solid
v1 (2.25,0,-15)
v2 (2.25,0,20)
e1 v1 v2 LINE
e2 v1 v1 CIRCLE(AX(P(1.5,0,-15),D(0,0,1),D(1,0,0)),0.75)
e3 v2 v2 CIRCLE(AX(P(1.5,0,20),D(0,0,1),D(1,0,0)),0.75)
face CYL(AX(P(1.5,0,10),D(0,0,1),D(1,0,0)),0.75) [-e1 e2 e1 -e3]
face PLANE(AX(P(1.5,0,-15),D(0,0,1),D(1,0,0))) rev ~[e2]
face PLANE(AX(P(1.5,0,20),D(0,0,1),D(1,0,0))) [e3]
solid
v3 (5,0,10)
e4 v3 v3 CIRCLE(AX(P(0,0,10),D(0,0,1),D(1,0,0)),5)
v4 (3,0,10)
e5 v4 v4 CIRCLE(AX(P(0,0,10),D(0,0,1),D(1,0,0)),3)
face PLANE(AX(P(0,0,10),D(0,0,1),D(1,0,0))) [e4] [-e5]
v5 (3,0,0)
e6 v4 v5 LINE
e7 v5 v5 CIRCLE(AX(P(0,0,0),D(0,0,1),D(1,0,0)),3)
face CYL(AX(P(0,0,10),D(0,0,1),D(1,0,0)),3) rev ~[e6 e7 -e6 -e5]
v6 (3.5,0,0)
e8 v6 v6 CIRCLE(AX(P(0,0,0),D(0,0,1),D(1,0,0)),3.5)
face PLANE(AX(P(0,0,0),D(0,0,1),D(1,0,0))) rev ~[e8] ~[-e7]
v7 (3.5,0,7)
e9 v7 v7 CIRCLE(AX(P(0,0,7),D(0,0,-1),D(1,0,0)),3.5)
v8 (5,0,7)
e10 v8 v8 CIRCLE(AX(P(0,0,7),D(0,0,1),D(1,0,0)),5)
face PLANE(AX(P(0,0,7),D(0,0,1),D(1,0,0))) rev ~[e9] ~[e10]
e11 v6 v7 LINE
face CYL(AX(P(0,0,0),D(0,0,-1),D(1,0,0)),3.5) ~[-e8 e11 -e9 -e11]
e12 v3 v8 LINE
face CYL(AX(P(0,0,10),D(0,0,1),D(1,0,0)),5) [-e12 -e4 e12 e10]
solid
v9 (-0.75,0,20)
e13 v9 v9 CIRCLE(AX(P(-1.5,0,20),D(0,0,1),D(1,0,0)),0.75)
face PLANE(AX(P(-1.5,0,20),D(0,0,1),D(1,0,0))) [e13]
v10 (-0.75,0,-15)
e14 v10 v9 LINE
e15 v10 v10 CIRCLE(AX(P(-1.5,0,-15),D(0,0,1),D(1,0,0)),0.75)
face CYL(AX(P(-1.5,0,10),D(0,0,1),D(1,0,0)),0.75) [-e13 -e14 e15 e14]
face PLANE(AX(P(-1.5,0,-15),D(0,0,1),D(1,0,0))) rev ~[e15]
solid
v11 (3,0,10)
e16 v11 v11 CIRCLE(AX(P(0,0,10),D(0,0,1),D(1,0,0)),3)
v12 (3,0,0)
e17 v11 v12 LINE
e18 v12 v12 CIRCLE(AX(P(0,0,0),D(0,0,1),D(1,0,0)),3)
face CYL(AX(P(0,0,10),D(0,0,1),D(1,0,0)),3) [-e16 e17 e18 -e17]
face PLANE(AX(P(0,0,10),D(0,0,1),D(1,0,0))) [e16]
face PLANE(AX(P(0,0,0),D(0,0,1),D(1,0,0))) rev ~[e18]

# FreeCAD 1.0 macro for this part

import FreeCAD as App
import Part
import Sketcher

V = App.Vector

doc = App.newDocument("Part")
body = doc.addObject("PartDesign::Body", "Body")

# Sketch on XY plane
sketch1 = body.newObject("Sketcher::SketchObject", "Sketch")
sketch1.AttachmentSupport = (doc.getObject("XY_Plane"), [""])
sketch1.MapMode = "FlatFace"
sketch1.addGeometry(Part.Circle(V(0, 0, 0), V(0, 0, 1), 3.5), False)
sketch1.addConstraint([
    Sketcher.Constraint("Coincident", 0, 3, -1, 1),
    Sketcher.Constraint("Diameter", 0, 7.0),
])
pad1 = body.newObject("PartDesign::Pad", "Pad")
pad1.Profile = sketch1
pad1.Length = 10

# Sketch on XY plane
sketch2 = body.newObject("Sketcher::SketchObject", "Sketch001")
sketch2.AttachmentSupport = (doc.getObject("XY_Plane"), [""])
sketch2.MapMode = "FlatFace"
sketch2.AttachmentOffset = App.Placement(V(0, 0, 10), App.Rotation())
sketch2.addGeometry(Part.Circle(V(0, 0, 0), V(0, 0, 1), 5), False)
sketch2.addConstraint([
    Sketcher.Constraint("Coincident", 0, 3, -1, 1),
    Sketcher.Constraint("Diameter", 0, 10.0),
])
pad2 = body.newObject("PartDesign::Pad", "Pad001")
pad2.Profile = sketch2
pad2.Length = 3
pad2.Reversed = True

# Sketch on XY plane
sketch3 = body.newObject("Sketcher::SketchObject", "Sketch002")
sketch3.AttachmentSupport = (doc.getObject("XY_Plane"), [""])
sketch3.MapMode = "FlatFace"
sketch3.AttachmentOffset = App.Placement(V(0, 0, 10), App.Rotation())
sketch3.addGeometry(Part.Circle(V(0, 0, 0), V(0, 0, 1), 3), False)
sketch3.addConstraint([
    Sketcher.Constraint("Coincident", 0, 3, -1, 1),
    Sketcher.Constraint("Diameter", 0, 6.0),
])
pocket1 = body.newObject("PartDesign::Pocket", "Pocket")
pocket1.Profile = sketch3
pocket1.Length = 25
body2 = doc.addObject("PartDesign::Body", "Body001")

# Sketch on XY plane
sketch4 = body2.newObject("Sketcher::SketchObject", "Sketch003")
sketch4.AttachmentSupport = (doc.getObject("XY_Plane001"), [""])
sketch4.MapMode = "FlatFace"
sketch4.AttachmentOffset = App.Placement(V(0, 0, 10), App.Rotation())
sketch4.addGeometry(Part.Circle(V(0, 0, 0), V(0, 0, 1), 3), False)
sketch4.addConstraint([
    Sketcher.Constraint("Coincident", 0, 3, -1, 1),
    Sketcher.Constraint("Diameter", 0, 6.0),
])
pad3 = body2.newObject("PartDesign::Pad", "Pad002")
pad3.Profile = sketch4
pad3.Length = 10
pad3.Reversed = True
body3 = doc.addObject("PartDesign::Body", "Body002")
body3.AllowCompound = True

# Sketch on XY plane
sketch5 = body3.newObject("Sketcher::SketchObject", "Sketch004")
sketch5.AttachmentSupport = (doc.getObject("XY_Plane002"), [""])
sketch5.MapMode = "FlatFace"
sketch5.AttachmentOffset = App.Placement(V(0, 0, 10), App.Rotation())
sketch5.addGeometry([
    Part.Circle(V(-1.5, 0, 0), V(0, 0, 1), 0.8),
    Part.Circle(V(1.5, 0, 0), V(0, 0, 1), 0.8),
], False)
sketch5.addConstraint([
    Sketcher.Constraint("Equal", 0, 1),
    Sketcher.Constraint("Symmetric", 0, 3, 1, 3, -1, 1),
    Sketcher.Constraint("PointOnObject", 0, 3, -1),
    Sketcher.Constraint("Diameter", 0, 1.5),
    Sketcher.Constraint("DistanceX", 0, 3, 1, 3, 3.0),
])
pad4 = body3.newObject("PartDesign::Pad", "Pad003")
pad4.Profile = sketch5
pad4.Type = "TwoLengths"
pad4.Length = 10
pad4.Length2 = 25

doc.recompute()
